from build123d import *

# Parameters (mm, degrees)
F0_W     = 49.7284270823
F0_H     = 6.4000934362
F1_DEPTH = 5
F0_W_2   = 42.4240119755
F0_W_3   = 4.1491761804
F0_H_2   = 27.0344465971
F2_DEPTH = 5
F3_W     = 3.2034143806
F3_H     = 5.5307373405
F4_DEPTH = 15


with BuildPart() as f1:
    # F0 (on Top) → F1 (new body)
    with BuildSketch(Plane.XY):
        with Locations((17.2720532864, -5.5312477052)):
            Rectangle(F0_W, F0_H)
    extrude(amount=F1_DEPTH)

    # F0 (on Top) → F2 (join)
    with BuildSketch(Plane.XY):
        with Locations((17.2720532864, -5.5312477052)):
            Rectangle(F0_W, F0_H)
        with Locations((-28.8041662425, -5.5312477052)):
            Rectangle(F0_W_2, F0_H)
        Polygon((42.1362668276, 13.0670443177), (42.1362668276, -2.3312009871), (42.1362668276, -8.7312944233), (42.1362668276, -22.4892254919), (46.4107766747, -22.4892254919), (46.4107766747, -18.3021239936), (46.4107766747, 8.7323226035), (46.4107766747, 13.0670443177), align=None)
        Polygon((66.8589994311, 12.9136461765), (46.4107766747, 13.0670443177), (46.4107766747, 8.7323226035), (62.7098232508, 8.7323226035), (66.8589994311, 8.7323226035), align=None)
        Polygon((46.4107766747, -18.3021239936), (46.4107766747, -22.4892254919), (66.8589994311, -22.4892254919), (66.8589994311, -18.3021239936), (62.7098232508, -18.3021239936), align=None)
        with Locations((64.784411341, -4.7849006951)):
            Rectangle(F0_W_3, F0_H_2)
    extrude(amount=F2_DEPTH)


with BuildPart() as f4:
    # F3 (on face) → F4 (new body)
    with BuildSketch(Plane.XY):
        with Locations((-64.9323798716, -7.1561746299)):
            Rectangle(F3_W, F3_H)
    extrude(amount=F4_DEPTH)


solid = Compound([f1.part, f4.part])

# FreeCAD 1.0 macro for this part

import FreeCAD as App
import Part
import Sketcher

V = App.Vector

doc = App.newDocument("Part")
params = doc.addObject("Spreadsheet::Sheet", "Params")
for row, (alias, value) in enumerate([
    ("pad1_length", "5 mm"),
    ("pad2_length", "5 mm"),
    ("pad3_length", "15 mm"),
], start=1):
    params.set(f"A{row}", alias)
    params.set(f"B{row}", "=" + value)
    params.setAlias(f"B{row}", alias)

body = doc.addObject("PartDesign::Body", "Body")

sketch1 = doc.addObject("Sketcher::SketchObject", "Sketch")
body.addObject(sketch1)
sketch1.AttachmentSupport = (doc.XY_Plane, [""])
sketch1.MapMode = "FlatFace"
sketch1.addGeometry([
    Part.LineSegment(V(-8, -2, 0), V(-8, -9, 0)),
    Part.LineSegment(V(-8, -9, 0), V(42, -9, 0)),
    Part.LineSegment(V(42, -9, 0), V(42, -2, 0)),
    Part.LineSegment(V(42, -2, 0), V(-8, -2, 0)),
], False)
sketch1.addConstraint([
    Sketcher.Constraint("Coincident", 0, 2, 1, 1),
    Sketcher.Constraint("Coincident", 1, 2, 2, 1),
    Sketcher.Constraint("Coincident", 2, 2, 3, 1),
    Sketcher.Constraint("Coincident", 3, 2, 0, 1),
    Sketcher.Constraint("Vertical", 0),
    Sketcher.Constraint("Horizontal", 1),
    Sketcher.Constraint("Vertical", 2),
    Sketcher.Constraint("Horizontal", 3),
    Sketcher.Constraint("DistanceY", 2, 2, -1, 1, 2.331201),
    Sketcher.Constraint("DistanceX", 1, 1, 1, 2, 49.728427),
    Sketcher.Constraint("DistanceY", 0, 2, 0, 1, 6.400093),
    Sketcher.Constraint("DistanceX", 0, 2, -1, 1, 7.59216),
])
pad1 = doc.addObject("PartDesign::Pad", "Pad")
body.addObject(pad1)
pad1.Profile = sketch1
pad1.setExpression("Length", "Params.pad1_length")

sketch2 = doc.addObject("Sketcher::SketchObject", "Sketch001")
body.addObject(sketch2)
sketch2.AttachmentSupport = (doc.XY_Plane, [""])
sketch2.MapMode = "FlatFace"
sketch2.addGeometry([
    Part.LineSegment(V(42.1, -2.3, 0), V(-50, -2.3, 0)),
    Part.LineSegment(V(-50, -2.3, 0), V(-50, -8.7, 0)),
    Part.LineSegment(V(-50, -8.7, 0), V(42.1, -8.7, 0)),
    Part.LineSegment(V(42.1, -8.7, 0), V(42.1, -22.5, 0)),
    Part.LineSegment(V(42.1, -22.5, 0), V(66.9, -22.5, 0)),
    Part.LineSegment(V(66.9, -22.5, 0), V(66.9, -18.3, 0)),
    Part.LineSegment(V(66.9, -18.3, 0), V(66.9, 8.7, 0)),
    Part.LineSegment(V(66.9, 8.7, 0), V(66.9, 12.9, 0)),
    Part.LineSegment(V(66.9, 12.9, 0), V(46.4, 13.1, 0)),
    Part.LineSegment(V(46.4, 13.1, 0), V(42.1, 13.1, 0)),
    Part.LineSegment(V(42.1, 13.1, 0), V(42.1, -2.3, 0)),
    Part.LineSegment(V(62.7, -18.3, 0), V(46.4, -18.3, 0)),
    Part.LineSegment(V(46.4, -18.3, 0), V(46.4, 8.7, 0)),
    Part.LineSegment(V(46.4, 8.7, 0), V(62.7, 8.7, 0)),
    Part.LineSegment(V(62.7, 8.7, 0), V(62.7, -18.3, 0)),
], False)
sketch2.addConstraint([
    Sketcher.Constraint("Coincident", 0, 2, 1, 1),
    Sketcher.Constraint("Coincident", 1, 2, 2, 1),
    Sketcher.Constraint("Coincident", 2, 2, 3, 1),
    Sketcher.Constraint("Coincident", 3, 2, 4, 1),
    Sketcher.Constraint("Coincident", 4, 2, 5, 1),
    Sketcher.Constraint("Coincident", 5, 2, 6, 1),
    Sketcher.Constraint("Coincident", 6, 2, 7, 1),
    Sketcher.Constraint("Coincident", 7, 2, 8, 1),
    Sketcher.Constraint("Coincident", 8, 2, 9, 1),
    Sketcher.Constraint("Coincident", 9, 2, 10, 1),
    Sketcher.Constraint("Coincident", 10, 2, 0, 1),
    Sketcher.Constraint("Coincident", 11, 2, 12, 1),
    Sketcher.Constraint("Coincident", 12, 2, 13, 1),
    Sketcher.Constraint("Coincident", 13, 2, 14, 1),
    Sketcher.Constraint("Coincident", 14, 2, 11, 1),
    Sketcher.Constraint("Horizontal", 0),
    Sketcher.Constraint("Vertical", 1),
    Sketcher.Constraint("Horizontal", 2),
    Sketcher.Constraint("Vertical", 3),
    Sketcher.Constraint("Horizontal", 4),
    Sketcher.Constraint("Vertical", 5),
    Sketcher.Constraint("Vertical", 6),
    Sketcher.Constraint("Vertical", 7),
    Sketcher.Constraint("Horizontal", 9),
    Sketcher.Constraint("Vertical", 10),
    Sketcher.Constraint("Horizontal", 11),
    Sketcher.Constraint("Vertical", 12),
    Sketcher.Constraint("Horizontal", 13),
    Sketcher.Constraint("Vertical", 14),
    Sketcher.Constraint("Horizontal", 5, 2, 11, 2),
    Sketcher.Constraint("Horizontal", 6, 2, 12, 2),
    Sketcher.Constraint("Vertical", 3, 2, 9, 2),
    Sketcher.Constraint("Vertical", 8, 2, 11, 2),
    Sketcher.Constraint("DistanceY", 5, 1, 5, 2, 4.187101),
    Sketcher.Constraint("DistanceX", -1, 1, 4, 2, 66.858999),
    Sketcher.Constraint("Distance", 8, 20.448798),
    Sketcher.Constraint("DistanceX", 0, 2, 0, 1, 92.152439),
    Sketcher.Constraint("DistanceX", 9, 2, 9, 1, 4.27451),
    Sketcher.Constraint("DistanceY", 3, 2, 3, 1, 13.757931),
    Sketcher.Constraint("DistanceY", 0, 2, -1, 1, 2.331201),
    Sketcher.Constraint("DistanceY", 7, 2, 8, 2, 0.153398),
    Sketcher.Constraint("DistanceX", 11, 2, 11, 1, 16.299047),
    Sketcher.Constraint("DistanceY", 1, 2, 1, 1, 6.400093),
    Sketcher.Constraint("DistanceY", 6, 1, 6, 2, 27.034447),
    Sketcher.Constraint("DistanceY", 7, 1, 7, 2, 4.181324),
])
pad2 = doc.addObject("PartDesign::Pad", "Pad001")
body.addObject(pad2)
pad2.Profile = sketch2
pad2.setExpression("Length", "Params.pad2_length")
body2 = doc.addObject("PartDesign::Body", "Body001")

sketch3 = doc.addObject("Sketcher::SketchObject", "Sketch002")
body2.addObject(sketch3)
sketch3.AttachmentSupport = (doc.getObject("XY_Plane001"), [""])
sketch3.MapMode = "FlatFace"
sketch3.addGeometry([
    Part.LineSegment(V(-66.5, -4.4, 0), V(-66.5, -9.9, 0)),
    Part.LineSegment(V(-66.5, -9.9, 0), V(-63.3, -9.9, 0)),
    Part.LineSegment(V(-63.3, -9.9, 0), V(-63.3, -4.4, 0)),
    Part.LineSegment(V(-63.3, -4.4, 0), V(-66.5, -4.4, 0)),
], False)
sketch3.addConstraint([
    Sketcher.Constraint("Coincident", 0, 2, 1, 1),
    Sketcher.Constraint("Coincident", 1, 2, 2, 1),
    Sketcher.Constraint("Coincident", 2, 2, 3, 1),
    Sketcher.Constraint("Coincident", 3, 2, 0, 1),
    Sketcher.Constraint("Vertical", 0),
    Sketcher.Constraint("Horizontal", 1),
    Sketcher.Constraint("Vertical", 2),
    Sketcher.Constraint("Horizontal", 3),
    Sketcher.Constraint("DistanceX", 1, 1, 1, 2, 3.203414),
    Sketcher.Constraint("DistanceY", 0, 2, 0, 1, 5.530737),
    Sketcher.Constraint("DistanceX", 0, 2, -1, 1, 66.534087),
    Sketcher.Constraint("DistanceY", 0, 2, -1, 1, 9.921543),
])
pad3 = doc.addObject("PartDesign::Pad", "Pad002")
body2.addObject(pad3)
pad3.Profile = sketch3
pad3.setExpression("Length", "Params.pad3_length")

doc.recompute()
